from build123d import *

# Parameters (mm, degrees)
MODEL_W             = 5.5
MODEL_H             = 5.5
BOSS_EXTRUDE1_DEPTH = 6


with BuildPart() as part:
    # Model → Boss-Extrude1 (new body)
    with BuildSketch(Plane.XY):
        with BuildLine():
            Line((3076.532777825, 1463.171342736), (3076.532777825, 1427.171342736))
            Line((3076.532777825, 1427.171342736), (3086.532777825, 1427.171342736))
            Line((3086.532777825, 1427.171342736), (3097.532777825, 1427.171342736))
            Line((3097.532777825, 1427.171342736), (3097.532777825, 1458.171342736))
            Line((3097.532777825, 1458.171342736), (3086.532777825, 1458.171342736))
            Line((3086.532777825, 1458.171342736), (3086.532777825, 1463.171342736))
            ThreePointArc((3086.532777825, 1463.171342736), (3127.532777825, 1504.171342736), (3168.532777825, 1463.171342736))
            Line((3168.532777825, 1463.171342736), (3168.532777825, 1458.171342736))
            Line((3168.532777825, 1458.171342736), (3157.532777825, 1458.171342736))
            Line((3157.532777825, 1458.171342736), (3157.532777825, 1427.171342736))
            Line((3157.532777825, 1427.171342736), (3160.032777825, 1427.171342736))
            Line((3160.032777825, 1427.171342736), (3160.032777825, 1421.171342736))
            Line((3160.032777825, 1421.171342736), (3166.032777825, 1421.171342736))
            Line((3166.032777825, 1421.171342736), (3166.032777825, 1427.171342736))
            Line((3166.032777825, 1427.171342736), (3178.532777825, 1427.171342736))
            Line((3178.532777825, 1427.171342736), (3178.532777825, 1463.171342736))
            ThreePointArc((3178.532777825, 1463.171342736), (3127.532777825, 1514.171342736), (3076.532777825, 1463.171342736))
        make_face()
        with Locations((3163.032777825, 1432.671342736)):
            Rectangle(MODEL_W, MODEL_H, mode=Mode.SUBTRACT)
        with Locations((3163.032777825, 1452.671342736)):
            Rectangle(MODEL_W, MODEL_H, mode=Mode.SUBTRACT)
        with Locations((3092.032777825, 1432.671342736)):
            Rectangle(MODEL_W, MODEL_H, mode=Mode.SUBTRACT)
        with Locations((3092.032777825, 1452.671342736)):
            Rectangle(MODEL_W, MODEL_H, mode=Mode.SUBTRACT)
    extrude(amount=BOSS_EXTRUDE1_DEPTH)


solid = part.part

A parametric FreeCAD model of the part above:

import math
import FreeCAD as App
import Part
import Sketcher

V = App.Vector


def add_polygon(sketch, points):
    """Adds a closed chain of lines whose ends are joined by coincident constraints."""
    first, n = sketch.GeometryCount, len(points)
    for a, b in zip(points, points[1:] + points[:1]):
        sketch.addGeometry(Part.LineSegment(App.Vector(*a, 0), App.Vector(*b, 0)), False)
    for i in range(n):
        sketch.addConstraint(Sketcher.Constraint("Coincident", first + i, 2, first + (i + 1) % n, 1))

doc = App.newDocument("Part")
body = doc.addObject("PartDesign::Body", "Body")

sketch1 = body.newObject("Sketcher::SketchObject", "Sketch")
sketch1.AttachmentSupport = (doc.getObject("XY_Plane"), [""])
sketch1.MapMode = "FlatFace"
sketch1.addGeometry(Part.LineSegment(V(3076.5, 1463.2, 0), V(3076.5, 1427.2, 0)), False)
sketch1.addGeometry(Part.LineSegment(V(3076.5, 1427.2, 0), V(3097.5, 1427.2, 0)), False)
sketch1.addGeometry(Part.LineSegment(V(3097.5, 1427.2, 0), V(3097.5, 1458.2, 0)), False)
sketch1.addGeometry(Part.LineSegment(V(3097.5, 1458.2, 0), V(3086.5, 1458.2, 0)), False)
sketch1.addGeometry(Part.LineSegment(V(3086.5, 1458.2, 0), V(3086.5, 1463.2, 0)), False)
sketch1.addGeometry(Part.ArcOfCircle(Part.Circle(V(3127.5, 1463.2, 0), V(0, 0, 1), 41), math.radians(0), math.radians(180)), False)
sketch1.addGeometry(Part.LineSegment(V(3168.5, 1463.2, 0), V(3168.5, 1458.2, 0)), False)
sketch1.addGeometry(Part.LineSegment(V(3168.5, 1458.2, 0), V(3157.5, 1458.2, 0)), False)
sketch1.addGeometry(Part.LineSegment(V(3157.5, 1458.2, 0), V(3157.5, 1427.2, 0)), False)
sketch1.addGeometry(Part.LineSegment(V(3157.5, 1427.2, 0), V(3160, 1427.2, 0)), False)
sketch1.addGeometry(Part.LineSegment(V(3160, 1427.2, 0), V(3160, 1421.2, 0)), False)
sketch1.addGeometry(Part.LineSegment(V(3160, 1421.2, 0), V(3166, 1421.2, 0)), False)
sketch1.addGeometry(Part.LineSegment(V(3166, 1421.2, 0), V(3166, 1427.2, 0)), False)
sketch1.addGeometry(Part.LineSegment(V(3166, 1427.2, 0), V(3178.5, 1427.2, 0)), False)
sketch1.addGeometry(Part.LineSegment(V(3178.5, 1427.2, 0), V(3178.5, 1463.2, 0)), False)
sketch1.addGeometry(Part.ArcOfCircle(Part.Circle(V(3127.5, 1463.2, 0), V(0, 0, 1), 51), math.radians(0), math.radians(180)), False)
add_polygon(sketch1, [(3094.8, 1429.9), (3089.3, 1429.9), (3089.3, 1435.4), (3094.8, 1435.4)])
add_polygon(sketch1, [(3165.8, 1429.9), (3160.3, 1429.9), (3160.3, 1435.4), (3165.8, 1435.4)])
add_polygon(sketch1, [(3094.8, 1449.9), (3089.3, 1449.9), (3089.3, 1455.4), (3094.8, 1455.4)])
add_polygon(sketch1, [(3165.8, 1449.9), (3160.3, 1449.9), (3160.3, 1455.4), (3165.8, 1455.4)])
sketch1.addConstraint([
    Sketcher.Constraint("Coincident", 0, 2, 1, 1),
    Sketcher.Constraint("Coincident", 1, 2, 2, 1),
    Sketcher.Constraint("Coincident", 2, 2, 3, 1),
    Sketcher.Constraint("Coincident", 3, 2, 4, 1),
    Sketcher.Constraint("Tangent", 4, 2, 5, 2),
    Sketcher.Constraint("Tangent", 5, 1, 6, 1),
    Sketcher.Constraint("Coincident", 6, 2, 7, 1),
    Sketcher.Constraint("Coincident", 7, 2, 8, 1),
    Sketcher.Constraint("Coincident", 8, 2, 9, 1),
    Sketcher.Constraint("Coincident", 9, 2, 10, 1),
    Sketcher.Constraint("Coincident", 10, 2, 11, 1),
    Sketcher.Constraint("Coincident", 11, 2, 12, 1),
    Sketcher.Constraint("Coincident", 12, 2, 13, 1),
    Sketcher.Constraint("Coincident", 13, 2, 14, 1),
    Sketcher.Constraint("Tangent", 14, 2, 15, 1),
    Sketcher.Constraint("Tangent", 15, 2, 0, 1),
    Sketcher.Constraint("Vertical", 0),
    Sketcher.Constraint("Horizontal", 1),
    Sketcher.Constraint("Vertical", 2),
    Sketcher.Constraint("Horizontal", 3),
    Sketcher.Constraint("Vertical", 4),
    Sketcher.Constraint("Vertical", 6),
    Sketcher.Constraint("Horizontal", 7),
    Sketcher.Constraint("Vertical", 8),
    Sketcher.Constraint("Horizontal", 9),
    Sketcher.Constraint("Vertical", 10),
    Sketcher.Constraint("Horizontal", 11),
    Sketcher.Constraint("Vertical", 12),
    Sketcher.Constraint("Horizontal", 13),
    Sketcher.Constraint("Vertical", 14),
    Sketcher.Constraint("Horizontal", 16),
    Sketcher.Constraint("Vertical", 17),
    Sketcher.Constraint("Horizontal", 18),
    Sketcher.Constraint("Vertical", 19),
    Sketcher.Constraint("Horizontal", 20),
    Sketcher.Constraint("Vertical", 21),
    Sketcher.Constraint("Horizontal", 22),
    Sketcher.Constraint("Vertical", 23),
    Sketcher.Constraint("Horizontal", 24),
    Sketcher.Constraint("Vertical", 25),
    Sketcher.Constraint("Horizontal", 26),
    Sketcher.Constraint("Vertical", 27),
    Sketcher.Constraint("Horizontal", 28),
    Sketcher.Constraint("Vertical", 29),
    Sketcher.Constraint("Horizontal", 30),
    Sketcher.Constraint("Vertical", 31),
    Sketcher.Constraint("Coincident", 15, 3, 5, 3),
    Sketcher.Constraint("Horizontal", 3, 2, 6, 2),
    Sketcher.Constraint("Horizontal", 1, 2, 8, 2),
    Sketcher.Constraint("Horizontal", 9, 2, 12, 2),
    Sketcher.Constraint("Horizontal", 19, 2, 20, 2),
    Sketcher.Constraint("Horizontal", 18, 2, 21, 2),
    Sketcher.Constraint("Horizontal", 27, 2, 28, 2),
    Sketcher.Constraint("Horizontal", 26, 2, 29, 2),
    Sketcher.Constraint("Vertical", 17, 2, 24, 2),
    Sketcher.Constraint("Vertical", 19, 2, 26, 2),
    Sketcher.Constraint("Vertical", 21, 2, 28, 2),
    Sketcher.Constraint("Vertical", 23, 2, 30, 2),
    Sketcher.Constraint("Equal", 3, 7),
    Sketcher.Constraint("Equal", 18, 20),
    Sketcher.Constraint("Equal", 11, 10),
    Sketcher.Constraint("Equal", 30, 17),
    Sketcher.Constraint("Equal", 23, 25),
    Sketcher.Constraint("Radius", 5, 41.0),
    Sketcher.Constraint("Radius", 15, 51.0),
    Sketcher.Constraint("DistanceX", 1, 1, 1, 2, 21.0),
    Sketcher.Constraint("DistanceX", 11, 1, 11, 2, 6.0),
    Sketcher.Constraint("DistanceY", 0, 2, 0, 1, 36.0),
    Sketcher.Constraint("DistanceY", 2, 1, 2, 2, 31.0),
    Sketcher.Constraint("DistanceX", 9, 1, 9, 2, 2.5),
    Sketcher.Constraint("DistanceX", 16, 2, 16, 1, 5.5),
    Sketcher.Constraint("DistanceY", 17, 2, 24, 2, 14.5),
    Sketcher.Constraint("DistanceX", 16, 2, 1, 2, 8.25),
    Sketcher.Constraint("DistanceY", 1, 2, 16, 2, 2.75),
    Sketcher.Constraint("DistanceX", 9, 2, 20, 2, 0.25),
    Sketcher.Constraint("DistanceX", -1, 1, 5, 3, 3127.532778),
    Sketcher.Constraint("DistanceY", -1, 1, 5, 3, 1463.171343),
])
pad1 = body.newObject("PartDesign::Pad", "Pad")
pad1.Profile = sketch1
pad1.Length = 6

doc.recompute()
